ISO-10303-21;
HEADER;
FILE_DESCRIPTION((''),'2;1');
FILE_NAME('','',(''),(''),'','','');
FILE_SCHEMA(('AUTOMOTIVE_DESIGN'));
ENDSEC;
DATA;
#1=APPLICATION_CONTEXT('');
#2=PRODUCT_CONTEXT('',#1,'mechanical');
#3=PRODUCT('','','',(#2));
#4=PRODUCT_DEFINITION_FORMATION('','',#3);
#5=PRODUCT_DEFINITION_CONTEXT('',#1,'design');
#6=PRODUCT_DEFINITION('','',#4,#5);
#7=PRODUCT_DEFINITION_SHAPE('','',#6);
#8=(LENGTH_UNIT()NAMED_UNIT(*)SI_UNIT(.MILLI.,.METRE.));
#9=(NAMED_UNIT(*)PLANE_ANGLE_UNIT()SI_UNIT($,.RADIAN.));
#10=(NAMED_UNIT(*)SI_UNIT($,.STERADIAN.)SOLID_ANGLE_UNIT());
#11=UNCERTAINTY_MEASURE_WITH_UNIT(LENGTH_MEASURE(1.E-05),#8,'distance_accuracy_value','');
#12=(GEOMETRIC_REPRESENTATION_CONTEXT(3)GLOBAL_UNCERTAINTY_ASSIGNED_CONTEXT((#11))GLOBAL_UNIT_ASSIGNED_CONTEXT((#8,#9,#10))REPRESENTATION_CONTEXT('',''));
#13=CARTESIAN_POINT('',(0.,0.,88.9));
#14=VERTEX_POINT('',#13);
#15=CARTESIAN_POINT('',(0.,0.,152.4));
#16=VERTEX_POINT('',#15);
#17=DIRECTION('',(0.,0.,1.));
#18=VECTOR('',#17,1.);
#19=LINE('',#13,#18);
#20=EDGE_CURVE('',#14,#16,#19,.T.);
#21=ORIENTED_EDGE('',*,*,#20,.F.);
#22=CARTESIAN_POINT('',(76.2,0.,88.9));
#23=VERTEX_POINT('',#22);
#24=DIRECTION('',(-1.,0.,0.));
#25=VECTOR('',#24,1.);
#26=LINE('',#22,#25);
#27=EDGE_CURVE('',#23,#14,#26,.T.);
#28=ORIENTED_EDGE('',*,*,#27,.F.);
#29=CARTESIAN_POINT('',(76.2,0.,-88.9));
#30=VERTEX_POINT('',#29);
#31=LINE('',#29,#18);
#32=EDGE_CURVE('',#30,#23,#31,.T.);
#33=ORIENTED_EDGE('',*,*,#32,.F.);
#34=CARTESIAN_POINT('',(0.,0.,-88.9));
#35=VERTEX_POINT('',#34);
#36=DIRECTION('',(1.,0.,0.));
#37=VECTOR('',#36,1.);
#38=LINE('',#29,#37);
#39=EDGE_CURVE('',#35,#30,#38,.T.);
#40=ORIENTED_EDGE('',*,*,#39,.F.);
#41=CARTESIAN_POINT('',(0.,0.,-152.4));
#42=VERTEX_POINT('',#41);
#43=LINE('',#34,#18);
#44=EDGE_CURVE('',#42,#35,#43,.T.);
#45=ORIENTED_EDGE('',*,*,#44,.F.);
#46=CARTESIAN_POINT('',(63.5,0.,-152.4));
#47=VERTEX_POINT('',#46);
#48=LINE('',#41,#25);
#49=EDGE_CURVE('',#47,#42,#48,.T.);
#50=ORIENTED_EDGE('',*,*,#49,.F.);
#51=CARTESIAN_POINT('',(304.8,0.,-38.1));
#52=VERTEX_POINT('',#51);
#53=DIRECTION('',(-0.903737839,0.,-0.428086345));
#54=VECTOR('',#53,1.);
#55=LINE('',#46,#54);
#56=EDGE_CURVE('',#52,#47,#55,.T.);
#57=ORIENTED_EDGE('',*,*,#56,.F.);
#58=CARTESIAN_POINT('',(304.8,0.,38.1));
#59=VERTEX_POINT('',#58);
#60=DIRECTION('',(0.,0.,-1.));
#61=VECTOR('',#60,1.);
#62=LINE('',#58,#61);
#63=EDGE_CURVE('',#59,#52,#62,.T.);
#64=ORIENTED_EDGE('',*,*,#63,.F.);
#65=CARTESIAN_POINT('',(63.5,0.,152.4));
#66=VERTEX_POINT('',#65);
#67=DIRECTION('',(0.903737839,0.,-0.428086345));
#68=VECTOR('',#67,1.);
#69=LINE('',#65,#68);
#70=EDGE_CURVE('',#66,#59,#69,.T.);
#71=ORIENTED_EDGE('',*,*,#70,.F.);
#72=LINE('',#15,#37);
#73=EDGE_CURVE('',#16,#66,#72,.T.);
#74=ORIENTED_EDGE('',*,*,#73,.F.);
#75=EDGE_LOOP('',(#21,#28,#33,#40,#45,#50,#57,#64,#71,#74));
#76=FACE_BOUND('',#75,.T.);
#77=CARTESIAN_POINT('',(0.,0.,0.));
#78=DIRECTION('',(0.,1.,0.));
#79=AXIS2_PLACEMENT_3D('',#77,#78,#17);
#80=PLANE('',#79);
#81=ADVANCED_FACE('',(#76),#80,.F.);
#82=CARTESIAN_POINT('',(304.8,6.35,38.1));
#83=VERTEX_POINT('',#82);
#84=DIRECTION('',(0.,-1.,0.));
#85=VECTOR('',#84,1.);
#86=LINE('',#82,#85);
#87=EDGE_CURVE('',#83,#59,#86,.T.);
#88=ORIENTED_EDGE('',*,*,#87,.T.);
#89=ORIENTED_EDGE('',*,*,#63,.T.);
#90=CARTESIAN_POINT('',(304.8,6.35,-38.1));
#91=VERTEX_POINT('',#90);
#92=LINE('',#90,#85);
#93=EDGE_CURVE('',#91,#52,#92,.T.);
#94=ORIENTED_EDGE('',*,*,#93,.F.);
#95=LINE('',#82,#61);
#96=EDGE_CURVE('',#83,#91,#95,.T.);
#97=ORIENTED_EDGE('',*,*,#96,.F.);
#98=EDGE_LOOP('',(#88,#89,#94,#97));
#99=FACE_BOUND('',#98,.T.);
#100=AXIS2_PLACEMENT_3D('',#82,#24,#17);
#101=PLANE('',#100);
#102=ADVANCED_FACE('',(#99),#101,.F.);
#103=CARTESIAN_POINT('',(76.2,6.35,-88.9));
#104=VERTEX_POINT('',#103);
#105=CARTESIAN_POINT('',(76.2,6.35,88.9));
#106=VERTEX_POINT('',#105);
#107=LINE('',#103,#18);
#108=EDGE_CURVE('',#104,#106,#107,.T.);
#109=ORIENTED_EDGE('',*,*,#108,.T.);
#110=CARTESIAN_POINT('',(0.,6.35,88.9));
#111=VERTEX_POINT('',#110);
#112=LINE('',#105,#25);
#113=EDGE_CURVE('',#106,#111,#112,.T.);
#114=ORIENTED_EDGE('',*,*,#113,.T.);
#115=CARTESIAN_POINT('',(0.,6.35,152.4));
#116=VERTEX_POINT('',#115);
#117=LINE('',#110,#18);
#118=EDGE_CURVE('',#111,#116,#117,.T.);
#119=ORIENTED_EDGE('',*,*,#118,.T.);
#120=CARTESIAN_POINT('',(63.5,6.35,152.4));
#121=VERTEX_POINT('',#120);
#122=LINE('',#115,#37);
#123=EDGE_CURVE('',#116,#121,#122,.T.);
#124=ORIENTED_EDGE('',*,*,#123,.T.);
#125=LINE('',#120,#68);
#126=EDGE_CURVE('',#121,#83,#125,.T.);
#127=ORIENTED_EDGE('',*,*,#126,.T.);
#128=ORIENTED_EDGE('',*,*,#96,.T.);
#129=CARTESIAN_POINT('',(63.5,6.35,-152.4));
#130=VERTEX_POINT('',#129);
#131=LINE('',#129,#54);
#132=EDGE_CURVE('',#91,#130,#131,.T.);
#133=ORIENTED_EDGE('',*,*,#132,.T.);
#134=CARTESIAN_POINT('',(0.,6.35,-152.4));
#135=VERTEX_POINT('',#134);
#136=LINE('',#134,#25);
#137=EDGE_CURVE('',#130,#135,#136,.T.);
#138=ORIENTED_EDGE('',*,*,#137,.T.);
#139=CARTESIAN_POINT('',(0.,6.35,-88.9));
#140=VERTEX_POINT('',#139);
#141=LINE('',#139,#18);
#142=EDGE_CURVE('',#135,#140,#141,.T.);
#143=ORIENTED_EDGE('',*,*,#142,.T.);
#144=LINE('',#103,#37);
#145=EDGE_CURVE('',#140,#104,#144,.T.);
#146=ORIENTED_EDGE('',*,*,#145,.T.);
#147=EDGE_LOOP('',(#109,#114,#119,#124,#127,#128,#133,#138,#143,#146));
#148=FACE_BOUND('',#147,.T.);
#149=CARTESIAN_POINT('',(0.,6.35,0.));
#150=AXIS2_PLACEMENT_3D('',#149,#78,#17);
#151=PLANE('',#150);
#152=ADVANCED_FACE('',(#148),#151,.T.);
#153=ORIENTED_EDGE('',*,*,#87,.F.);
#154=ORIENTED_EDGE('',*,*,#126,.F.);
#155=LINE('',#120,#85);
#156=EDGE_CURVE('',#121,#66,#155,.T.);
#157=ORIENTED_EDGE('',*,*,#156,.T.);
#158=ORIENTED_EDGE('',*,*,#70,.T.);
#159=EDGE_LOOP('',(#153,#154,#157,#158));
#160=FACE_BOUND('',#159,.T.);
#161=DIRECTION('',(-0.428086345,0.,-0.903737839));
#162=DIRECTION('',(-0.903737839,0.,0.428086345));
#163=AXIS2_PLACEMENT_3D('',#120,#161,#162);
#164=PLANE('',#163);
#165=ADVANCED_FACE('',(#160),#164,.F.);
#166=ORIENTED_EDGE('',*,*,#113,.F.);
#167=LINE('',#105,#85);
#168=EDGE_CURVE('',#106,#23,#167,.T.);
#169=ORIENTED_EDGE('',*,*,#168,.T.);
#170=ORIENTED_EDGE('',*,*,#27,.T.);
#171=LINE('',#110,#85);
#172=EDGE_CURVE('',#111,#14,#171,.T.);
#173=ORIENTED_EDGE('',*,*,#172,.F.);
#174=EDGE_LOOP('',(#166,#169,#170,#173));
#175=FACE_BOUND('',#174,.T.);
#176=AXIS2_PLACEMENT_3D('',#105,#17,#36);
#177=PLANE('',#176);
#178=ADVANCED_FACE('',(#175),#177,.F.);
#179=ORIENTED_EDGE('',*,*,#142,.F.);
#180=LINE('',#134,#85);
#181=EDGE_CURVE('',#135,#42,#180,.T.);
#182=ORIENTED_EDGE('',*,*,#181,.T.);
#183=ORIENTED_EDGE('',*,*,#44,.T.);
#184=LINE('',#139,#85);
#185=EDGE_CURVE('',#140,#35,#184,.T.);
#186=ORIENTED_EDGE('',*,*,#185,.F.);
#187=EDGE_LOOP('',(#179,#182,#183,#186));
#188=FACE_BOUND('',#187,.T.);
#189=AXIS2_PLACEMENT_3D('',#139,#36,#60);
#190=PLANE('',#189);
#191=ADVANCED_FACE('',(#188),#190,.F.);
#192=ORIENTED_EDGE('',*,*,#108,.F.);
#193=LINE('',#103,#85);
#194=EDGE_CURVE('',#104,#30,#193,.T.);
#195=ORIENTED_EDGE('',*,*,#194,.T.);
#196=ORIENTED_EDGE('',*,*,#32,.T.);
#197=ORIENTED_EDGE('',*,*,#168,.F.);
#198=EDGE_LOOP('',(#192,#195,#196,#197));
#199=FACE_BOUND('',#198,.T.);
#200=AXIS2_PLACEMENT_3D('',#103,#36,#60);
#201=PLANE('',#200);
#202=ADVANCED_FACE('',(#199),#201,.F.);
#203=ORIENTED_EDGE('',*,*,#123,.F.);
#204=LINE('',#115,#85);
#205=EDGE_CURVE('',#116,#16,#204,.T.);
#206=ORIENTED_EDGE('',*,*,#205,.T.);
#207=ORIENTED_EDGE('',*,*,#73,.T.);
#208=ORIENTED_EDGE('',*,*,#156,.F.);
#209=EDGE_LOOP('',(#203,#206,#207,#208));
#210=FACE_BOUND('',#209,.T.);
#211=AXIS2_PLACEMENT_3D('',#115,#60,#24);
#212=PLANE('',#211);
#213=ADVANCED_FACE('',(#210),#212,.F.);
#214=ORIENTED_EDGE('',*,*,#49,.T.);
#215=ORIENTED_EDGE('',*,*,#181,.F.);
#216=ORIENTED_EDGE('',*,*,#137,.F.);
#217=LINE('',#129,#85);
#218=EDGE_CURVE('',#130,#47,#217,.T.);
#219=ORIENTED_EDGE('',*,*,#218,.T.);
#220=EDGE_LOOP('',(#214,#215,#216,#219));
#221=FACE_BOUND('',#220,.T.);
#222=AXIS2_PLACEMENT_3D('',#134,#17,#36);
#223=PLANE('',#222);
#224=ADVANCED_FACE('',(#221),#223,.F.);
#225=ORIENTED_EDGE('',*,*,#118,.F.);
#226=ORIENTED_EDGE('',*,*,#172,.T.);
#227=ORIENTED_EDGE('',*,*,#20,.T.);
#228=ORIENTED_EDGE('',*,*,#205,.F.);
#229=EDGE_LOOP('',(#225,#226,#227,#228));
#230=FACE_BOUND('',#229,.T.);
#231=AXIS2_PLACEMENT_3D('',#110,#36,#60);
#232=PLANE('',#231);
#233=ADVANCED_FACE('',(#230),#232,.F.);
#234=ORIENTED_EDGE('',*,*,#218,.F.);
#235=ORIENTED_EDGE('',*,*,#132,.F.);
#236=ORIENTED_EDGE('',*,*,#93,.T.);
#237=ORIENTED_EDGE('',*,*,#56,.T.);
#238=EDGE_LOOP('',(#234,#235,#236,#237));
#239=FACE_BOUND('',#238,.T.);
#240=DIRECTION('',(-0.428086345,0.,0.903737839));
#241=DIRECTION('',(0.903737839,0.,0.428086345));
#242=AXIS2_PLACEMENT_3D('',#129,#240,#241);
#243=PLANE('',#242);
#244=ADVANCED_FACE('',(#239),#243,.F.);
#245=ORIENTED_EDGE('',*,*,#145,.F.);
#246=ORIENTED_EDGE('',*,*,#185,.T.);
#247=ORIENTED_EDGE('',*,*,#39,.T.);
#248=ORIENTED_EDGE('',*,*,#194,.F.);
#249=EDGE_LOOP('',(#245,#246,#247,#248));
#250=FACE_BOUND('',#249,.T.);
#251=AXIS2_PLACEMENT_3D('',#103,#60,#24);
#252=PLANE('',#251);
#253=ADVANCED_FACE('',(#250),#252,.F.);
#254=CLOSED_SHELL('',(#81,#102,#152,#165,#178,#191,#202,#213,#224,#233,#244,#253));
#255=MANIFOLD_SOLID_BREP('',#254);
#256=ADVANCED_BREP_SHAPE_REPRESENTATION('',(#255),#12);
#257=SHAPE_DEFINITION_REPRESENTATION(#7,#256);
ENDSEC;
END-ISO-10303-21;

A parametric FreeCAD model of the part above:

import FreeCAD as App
import Part
import Sketcher

V = App.Vector
Q = App.Units.Quantity


def add_polygon(sketch, points):
    """Adds a closed chain of lines whose ends are joined by coincident constraints."""
    first, n = sketch.GeometryCount, len(points)
    for a, b in zip(points, points[1:] + points[:1]):
        sketch.addGeometry(Part.LineSegment(App.Vector(*a, 0), App.Vector(*b, 0)), False)
    for i in range(n):
        sketch.addConstraint(Sketcher.Constraint("Coincident", first + i, 2, first + (i + 1) % n, 1))

doc = App.newDocument("Part")
body = doc.addObject("PartDesign::Body", "Body")

sketch1 = body.newObject("Sketcher::SketchObject", "Sketch")
sketch1.AttachmentSupport = (doc.getObject("XZ_Plane"), [""])
sketch1.MapMode = "FlatFace"
add_polygon(sketch1, [(76.2, -88.9), (76.2, 88.9), (0, 88.9), (0, 152.4), (63.5, 152.4), (304.8, 38.1), (304.8, -38.1), (63.5, -152.4), (0, -152.4), (0, -88.9)])
sketch1.addConstraint(Sketcher.Constraint("Vertical", 0))
sketch1.addConstraint(Sketcher.Constraint("Horizontal", 1))
sketch1.addConstraint(Sketcher.Constraint("Vertical", 2))
sketch1.addConstraint(Sketcher.Constraint("Horizontal", 3))
sketch1.addConstraint(Sketcher.Constraint("Vertical", 5))
sketch1.addConstraint(Sketcher.Constraint("Horizontal", 7))
sketch1.addConstraint(Sketcher.Constraint("Vertical", 8))
sketch1.addConstraint(Sketcher.Constraint("Horizontal", 9))
sketch1.addConstraint(Sketcher.Constraint("Symmetric", 2, 2, 7, 2, -1, 1))
sketch1.addConstraint(Sketcher.Constraint("Symmetric", 1, 2, 8, 2, -1))
sketch1.addConstraint(Sketcher.Constraint("Vertical", 3, 2, 6, 2))
sketch1.addConstraint(Sketcher.Constraint("Equal", 7, 2))
sketch1.addConstraint(Sketcher.Constraint("Equal", 9, 5))
sketch1.addConstraint(Sketcher.Constraint("Equal", 4, 6))
sketch1.addConstraint(Sketcher.Constraint("DistanceX", 1, 2, 1, 1, Q("3 in")))
sketch1.addConstraint(Sketcher.Constraint("DistanceY", 0, 1, 0, 2, Q("7 in")))
sketch1.addConstraint(Sketcher.Constraint("DistanceX", 3, 1, 3, 2, Q("2.5 in")))
sketch1.addConstraint(Sketcher.Constraint("DistanceX", -1, 1, 4, 2, Q("12 in")))
pad1 = body.newObject("PartDesign::Pad", "Pad")
pad1.Profile = sketch1
pad1.Length = Q("0.25 in")
pad1.Reversed = True

doc.recompute()
